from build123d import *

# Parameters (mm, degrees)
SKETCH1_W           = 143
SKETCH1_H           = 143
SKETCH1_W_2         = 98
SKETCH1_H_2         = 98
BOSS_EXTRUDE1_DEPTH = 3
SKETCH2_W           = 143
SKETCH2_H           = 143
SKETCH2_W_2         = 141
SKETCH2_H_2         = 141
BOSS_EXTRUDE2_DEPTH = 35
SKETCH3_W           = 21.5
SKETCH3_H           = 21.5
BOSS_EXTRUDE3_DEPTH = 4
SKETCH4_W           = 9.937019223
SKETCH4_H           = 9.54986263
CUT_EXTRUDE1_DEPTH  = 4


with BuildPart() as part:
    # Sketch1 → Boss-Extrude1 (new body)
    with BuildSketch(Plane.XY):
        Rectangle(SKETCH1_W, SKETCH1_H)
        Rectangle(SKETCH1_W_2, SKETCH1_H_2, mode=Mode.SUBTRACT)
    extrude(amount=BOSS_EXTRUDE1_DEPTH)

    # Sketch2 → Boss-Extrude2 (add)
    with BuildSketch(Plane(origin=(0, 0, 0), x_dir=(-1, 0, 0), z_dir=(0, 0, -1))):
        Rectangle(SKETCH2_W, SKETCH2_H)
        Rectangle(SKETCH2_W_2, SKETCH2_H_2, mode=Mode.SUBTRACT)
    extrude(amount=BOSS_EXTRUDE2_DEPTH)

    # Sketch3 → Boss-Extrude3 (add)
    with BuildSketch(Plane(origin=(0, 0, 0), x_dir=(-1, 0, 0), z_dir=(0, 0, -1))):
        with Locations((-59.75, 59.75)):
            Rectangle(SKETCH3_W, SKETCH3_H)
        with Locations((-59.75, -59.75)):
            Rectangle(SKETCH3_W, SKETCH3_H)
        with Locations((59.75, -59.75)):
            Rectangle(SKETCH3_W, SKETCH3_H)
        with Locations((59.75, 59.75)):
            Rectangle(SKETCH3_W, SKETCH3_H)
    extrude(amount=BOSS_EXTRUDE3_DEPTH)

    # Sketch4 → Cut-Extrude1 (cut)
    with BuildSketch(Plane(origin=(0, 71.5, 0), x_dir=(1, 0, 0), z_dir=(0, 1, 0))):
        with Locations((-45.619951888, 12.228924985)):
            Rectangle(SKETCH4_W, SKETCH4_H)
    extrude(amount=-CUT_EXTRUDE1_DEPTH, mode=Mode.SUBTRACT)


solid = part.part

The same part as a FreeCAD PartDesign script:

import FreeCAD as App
import Part
import Sketcher
Q = App.Units.Quantity

doc = App.newDocument("Part")
body = doc.addObject("PartDesign::Body", "Body")

sketch1 = body.newObject("Sketcher::SketchObject", "Sketch")
sketch1.AttachmentSupport = (doc.getObject("XY_Plane"), [""])
sketch1.MapMode = "FlatFace"
sketch1.addGeometry(Part.LineSegment(App.Vector(-71.5, 71.5, 0), App.Vector(-71.5, -71.5, 0)), False)
sketch1.addGeometry(Part.LineSegment(App.Vector(-71.5, -71.5, 0), App.Vector(71.5, -71.5, 0)), False)
sketch1.addGeometry(Part.LineSegment(App.Vector(71.5, -71.5, 0), App.Vector(71.5, 71.5, 0)), False)
sketch1.addGeometry(Part.LineSegment(App.Vector(71.5, 71.5, 0), App.Vector(-71.5, 71.5, 0)), False)
sketch1.addGeometry(Part.LineSegment(App.Vector(49, -49, 0), App.Vector(-49, -49, 0)), False)
sketch1.addGeometry(Part.LineSegment(App.Vector(-49, -49, 0), App.Vector(-49, 49, 0)), False)
sketch1.addGeometry(Part.LineSegment(App.Vector(-49, 49, 0), App.Vector(49, 49, 0)), False)
sketch1.addGeometry(Part.LineSegment(App.Vector(49, 49, 0), App.Vector(49, -49, 0)), False)
sketch1.addConstraint(Sketcher.Constraint("Coincident", 0, 2, 1, 1))
sketch1.addConstraint(Sketcher.Constraint("Coincident", 1, 2, 2, 1))
sketch1.addConstraint(Sketcher.Constraint("Coincident", 2, 2, 3, 1))
sketch1.addConstraint(Sketcher.Constraint("Coincident", 3, 2, 0, 1))
sketch1.addConstraint(Sketcher.Constraint("Coincident", 4, 2, 5, 1))
sketch1.addConstraint(Sketcher.Constraint("Coincident", 5, 2, 6, 1))
sketch1.addConstraint(Sketcher.Constraint("Coincident", 6, 2, 7, 1))
sketch1.addConstraint(Sketcher.Constraint("Coincident", 7, 2, 4, 1))
sketch1.addConstraint(Sketcher.Constraint("Vertical", 0))
sketch1.addConstraint(Sketcher.Constraint("Horizontal", 1))
sketch1.addConstraint(Sketcher.Constraint("Vertical", 2))
sketch1.addConstraint(Sketcher.Constraint("Horizontal", 3))
sketch1.addConstraint(Sketcher.Constraint("Horizontal", 4))
sketch1.addConstraint(Sketcher.Constraint("Vertical", 5))
sketch1.addConstraint(Sketcher.Constraint("Horizontal", 6))
sketch1.addConstraint(Sketcher.Constraint("Vertical", 7))
sketch1.addConstraint(Sketcher.Constraint("Symmetric", 0, 2, 2, 2, -1, 1))
sketch1.addConstraint(Sketcher.Constraint("Symmetric", 4, 2, 6, 2, -1, 1))
sketch1.addConstraint(Sketcher.Constraint("Equal", 3, 0))
sketch1.addConstraint(Sketcher.Constraint("Equal", 6, 5))
sketch1.addConstraint(Sketcher.Constraint("DistanceX", 1, 1, 1, 2, Q("143 mm")))
sketch1.addConstraint(Sketcher.Constraint("DistanceX", 4, 2, 4, 1, Q("98 mm")))
pad1 = body.newObject("PartDesign::Pad", "Pad")
pad1.Profile = sketch1
pad1.Length = 3

sketch2 = body.newObject("Sketcher::SketchObject", "Sketch001")
sketch2.AttachmentSupport = (doc.getObject("XY_Plane"), [""])
sketch2.MapMode = "FlatFace"
sketch2.addGeometry(Part.LineSegment(App.Vector(71.5, 71.5, 0), App.Vector(71.5, -71.5, 0)), False)
sketch2.addGeometry(Part.LineSegment(App.Vector(71.5, -71.5, 0), App.Vector(-71.5, -71.5, 0)), False)
sketch2.addGeometry(Part.LineSegment(App.Vector(-71.5, -71.5, 0), App.Vector(-71.5, 71.5, 0)), False)
sketch2.addGeometry(Part.LineSegment(App.Vector(-71.5, 71.5, 0), App.Vector(71.5, 71.5, 0)), False)
sketch2.addGeometry(Part.LineSegment(App.Vector(-70.5, -70.5, 0), App.Vector(70.5, -70.5, 0)), False)
sketch2.addGeometry(Part.LineSegment(App.Vector(70.5, -70.5, 0), App.Vector(70.5, 70.5, 0)), False)
sketch2.addGeometry(Part.LineSegment(App.Vector(70.5, 70.5, 0), App.Vector(-70.5, 70.5, 0)), False)
sketch2.addGeometry(Part.LineSegment(App.Vector(-70.5, 70.5, 0), App.Vector(-70.5, -70.5, 0)), False)
sketch2.addConstraint(Sketcher.Constraint("Coincident", 0, 2, 1, 1))
sketch2.addConstraint(Sketcher.Constraint("Coincident", 1, 2, 2, 1))
sketch2.addConstraint(Sketcher.Constraint("Coincident", 2, 2, 3, 1))
sketch2.addConstraint(Sketcher.Constraint("Coincident", 3, 2, 0, 1))
sketch2.addConstraint(Sketcher.Constraint("Coincident", 4, 2, 5, 1))
sketch2.addConstraint(Sketcher.Constraint("Coincident", 5, 2, 6, 1))
sketch2.addConstraint(Sketcher.Constraint("Coincident", 6, 2, 7, 1))
sketch2.addConstraint(Sketcher.Constraint("Coincident", 7, 2, 4, 1))
sketch2.addConstraint(Sketcher.Constraint("Vertical", 0))
sketch2.addConstraint(Sketcher.Constraint("Horizontal", 1))
sketch2.addConstraint(Sketcher.Constraint("Vertical", 2))
sketch2.addConstraint(Sketcher.Constraint("Horizontal", 3))
sketch2.addConstraint(Sketcher.Constraint("Horizontal", 4))
sketch2.addConstraint(Sketcher.Constraint("Vertical", 5))
sketch2.addConstraint(Sketcher.Constraint("Horizontal", 6))
sketch2.addConstraint(Sketcher.Constraint("Vertical", 7))
sketch2.addConstraint(Sketcher.Constraint("Symmetric", 0, 2, 2, 2, -1, 1))
sketch2.addConstraint(Sketcher.Constraint("Symmetric", 4, 2, 6, 2, -1, 1))
sketch2.addConstraint(Sketcher.Constraint("Equal", 3, 0))
sketch2.addConstraint(Sketcher.Constraint("Equal", 6, 5))
sketch2.addConstraint(Sketcher.Constraint("DistanceX", 1, 2, 1, 1, Q("143 mm")))
sketch2.addConstraint(Sketcher.Constraint("DistanceX", 4, 1, 4, 2, Q("141 mm")))
pad2 = body.newObject("PartDesign::Pad", "Pad001")
pad2.Profile = sketch2
pad2.Length = 35
pad2.Reversed = True

sketch3 = body.newObject("Sketcher::SketchObject", "Sketch002")
sketch3.AttachmentSupport = (doc.getObject("XY_Plane"), [""])
sketch3.MapMode = "FlatFace"
sketch3.addGeometry(Part.LineSegment(App.Vector(70.5, 70.5, 0), App.Vector(70.5, 49, 0)), False)
sketch3.addGeometry(Part.LineSegment(App.Vector(70.5, 49, 0), App.Vector(49, 49, 0)), False)
sketch3.addGeometry(Part.LineSegment(App.Vector(49, 49, 0), App.Vector(49, 70.5, 0)), False)
sketch3.addGeometry(Part.LineSegment(App.Vector(49, 70.5, 0), App.Vector(70.5, 70.5, 0)), False)
sketch3.addGeometry(Part.LineSegment(App.Vector(70.5, -49, 0), App.Vector(70.5, -70.5, 0)), False)
sketch3.addGeometry(Part.LineSegment(App.Vector(70.5, -70.5, 0), App.Vector(49, -70.5, 0)), False)
sketch3.addGeometry(Part.LineSegment(App.Vector(49, -70.5, 0), App.Vector(49, -49, 0)), False)
sketch3.addGeometry(Part.LineSegment(App.Vector(49, -49, 0), App.Vector(70.5, -49, 0)), False)
sketch3.addGeometry(Part.LineSegment(App.Vector(-49, -49, 0), App.Vector(-49, -70.5, 0)), False)
sketch3.addGeometry(Part.LineSegment(App.Vector(-49, -70.5, 0), App.Vector(-70.5, -70.5, 0)), False)
sketch3.addGeometry(Part.LineSegment(App.Vector(-70.5, -70.5, 0), App.Vector(-70.5, -49, 0)), False)
sketch3.addGeometry(Part.LineSegment(App.Vector(-70.5, -49, 0), App.Vector(-49, -49, 0)), False)
sketch3.addGeometry(Part.LineSegment(App.Vector(-49, 70.5, 0), App.Vector(-49, 49, 0)), False)
sketch3.addGeometry(Part.LineSegment(App.Vector(-49, 49, 0), App.Vector(-70.5, 49, 0)), False)
sketch3.addGeometry(Part.LineSegment(App.Vector(-70.5, 49, 0), App.Vector(-70.5, 70.5, 0)), False)
sketch3.addGeometry(Part.LineSegment(App.Vector(-70.5, 70.5, 0), App.Vector(-49, 70.5, 0)), False)
sketch3.addConstraint(Sketcher.Constraint("Coincident", 0, 2, 1, 1))
sketch3.addConstraint(Sketcher.Constraint("Coincident", 1, 2, 2, 1))
sketch3.addConstraint(Sketcher.Constraint("Coincident", 2, 2, 3, 1))
sketch3.addConstraint(Sketcher.Constraint("Coincident", 3, 2, 0, 1))
sketch3.addConstraint(Sketcher.Constraint("Coincident", 4, 2, 5, 1))
sketch3.addConstraint(Sketcher.Constraint("Coincident", 5, 2, 6, 1))
sketch3.addConstraint(Sketcher.Constraint("Coincident", 6, 2, 7, 1))
sketch3.addConstraint(Sketcher.Constraint("Coincident", 7, 2, 4, 1))
sketch3.addConstraint(Sketcher.Constraint("Coincident", 8, 2, 9, 1))
sketch3.addConstraint(Sketcher.Constraint("Coincident", 9, 2, 10, 1))
sketch3.addConstraint(Sketcher.Constraint("Coincident", 10, 2, 11, 1))
sketch3.addConstraint(Sketcher.Constraint("Coincident", 11, 2, 8, 1))
sketch3.addConstraint(Sketcher.Constraint("Coincident", 12, 2, 13, 1))
sketch3.addConstraint(Sketcher.Constraint("Coincident", 13, 2, 14, 1))
sketch3.addConstraint(Sketcher.Constraint("Coincident", 14, 2, 15, 1))
sketch3.addConstraint(Sketcher.Constraint("Coincident", 15, 2, 12, 1))
sketch3.addConstraint(Sketcher.Constraint("Vertical", 0))
sketch3.addConstraint(Sketcher.Constraint("Horizontal", 1))
sketch3.addConstraint(Sketcher.Constraint("Vertical", 2))
sketch3.addConstraint(Sketcher.Constraint("Horizontal", 3))
sketch3.addConstraint(Sketcher.Constraint("Vertical", 4))
sketch3.addConstraint(Sketcher.Constraint("Horizontal", 5))
sketch3.addConstraint(Sketcher.Constraint("Vertical", 6))
sketch3.addConstraint(Sketcher.Constraint("Horizontal", 7))
sketch3.addConstraint(Sketcher.Constraint("Vertical", 8))
sketch3.addConstraint(Sketcher.Constraint("Horizontal", 9))
sketch3.addConstraint(Sketcher.Constraint("Vertical", 10))
sketch3.addConstraint(Sketcher.Constraint("Horizontal", 11))
sketch3.addConstraint(Sketcher.Constraint("Vertical", 12))
sketch3.addConstraint(Sketcher.Constraint("Horizontal", 13))
sketch3.addConstraint(Sketcher.Constraint("Vertical", 14))
sketch3.addConstraint(Sketcher.Constraint("Horizontal", 15))
sketch3.addConstraint(Sketcher.Constraint("Symmetric", 2, 2, 8, 2, -1, 1))
sketch3.addConstraint(Sketcher.Constraint("Symmetric", 0, 2, 10, 2, -1, 1))
sketch3.addConstraint(Sketcher.Constraint("Symmetric", 6, 2, 12, 2, -1, 1))
sketch3.addConstraint(Sketcher.Constraint("Symmetric", 4, 2, 14, 2, -1, 1))
sketch3.addConstraint(Sketcher.Constraint("Symmetric", 5, 2, 8, 2, -2))
sketch3.addConstraint(Sketcher.Constraint("Symmetric", 7, 2, 10, 2, -2))
sketch3.addConstraint(Sketcher.Constraint("Equal", 15, 0))
sketch3.addConstraint(Sketcher.Constraint("DistanceX", 1, 2, 1, 1, Q("21.5 mm")))
sketch3.addConstraint(Sketcher.Constraint("DistanceY", -1, 1, 0, 2, Q("49 mm")))
sketch3.addConstraint(Sketcher.Constraint("DistanceX", -1, 1, 1, 2, Q("49 mm")))
pad3 = body.newObject("PartDesign::Pad", "Pad002")
pad3.Profile = sketch3
pad3.Length = 4
pad3.Reversed = True

sketch4 = body.newObject("Sketcher::SketchObject", "Sketch003")
sketch4.AttachmentSupport = (doc.getObject("XZ_Plane"), [""])
sketch4.MapMode = "FlatFace"
sketch4.AttachmentOffset = App.Placement(App.Vector(0, 0, -71.5), App.Rotation())
sketch4.addGeometry(Part.LineSegment(App.Vector(-50.588461, -17.003856, 0), App.Vector(-50.588461, -7.453994, 0)), False)
sketch4.addGeometry(Part.LineSegment(App.Vector(-50.588461, -7.453994, 0), App.Vector(-40.651442, -7.453994, 0)), False)
sketch4.addGeometry(Part.LineSegment(App.Vector(-40.651442, -7.453994, 0), App.Vector(-40.651442, -17.003856, 0)), False)
sketch4.addGeometry(Part.LineSegment(App.Vector(-40.651442, -17.003856, 0), App.Vector(-50.588461, -17.003856, 0)), False)
sketch4.addConstraint(Sketcher.Constraint("Coincident", 0, 2, 1, 1))
sketch4.addConstraint(Sketcher.Constraint("Coincident", 1, 2, 2, 1))
sketch4.addConstraint(Sketcher.Constraint("Coincident", 2, 2, 3, 1))
sketch4.addConstraint(Sketcher.Constraint("Coincident", 3, 2, 0, 1))
sketch4.addConstraint(Sketcher.Constraint("Vertical", 0))
sketch4.addConstraint(Sketcher.Constraint("Horizontal", 1))
sketch4.addConstraint(Sketcher.Constraint("Vertical", 2))
sketch4.addConstraint(Sketcher.Constraint("Horizontal", 3))
sketch4.addConstraint(Sketcher.Constraint("DistanceX", 1, 1, 1, 2, Q("9.937019 mm")))
sketch4.addConstraint(Sketcher.Constraint("DistanceY", 0, 1, 0, 2, Q("9.549863 mm")))
sketch4.addConstraint(Sketcher.Constraint("DistanceX", 0, 2, -1, 1, Q("50.588461 mm")))
sketch4.addConstraint(Sketcher.Constraint("DistanceY", 0, 2, -1, 1, Q("7.453994 mm")))
pocket1 = body.newObject("PartDesign::Pocket", "Pocket")
pocket1.Profile = sketch4
pocket1.Length = 4
pocket1.Reversed = True

doc.recompute()
